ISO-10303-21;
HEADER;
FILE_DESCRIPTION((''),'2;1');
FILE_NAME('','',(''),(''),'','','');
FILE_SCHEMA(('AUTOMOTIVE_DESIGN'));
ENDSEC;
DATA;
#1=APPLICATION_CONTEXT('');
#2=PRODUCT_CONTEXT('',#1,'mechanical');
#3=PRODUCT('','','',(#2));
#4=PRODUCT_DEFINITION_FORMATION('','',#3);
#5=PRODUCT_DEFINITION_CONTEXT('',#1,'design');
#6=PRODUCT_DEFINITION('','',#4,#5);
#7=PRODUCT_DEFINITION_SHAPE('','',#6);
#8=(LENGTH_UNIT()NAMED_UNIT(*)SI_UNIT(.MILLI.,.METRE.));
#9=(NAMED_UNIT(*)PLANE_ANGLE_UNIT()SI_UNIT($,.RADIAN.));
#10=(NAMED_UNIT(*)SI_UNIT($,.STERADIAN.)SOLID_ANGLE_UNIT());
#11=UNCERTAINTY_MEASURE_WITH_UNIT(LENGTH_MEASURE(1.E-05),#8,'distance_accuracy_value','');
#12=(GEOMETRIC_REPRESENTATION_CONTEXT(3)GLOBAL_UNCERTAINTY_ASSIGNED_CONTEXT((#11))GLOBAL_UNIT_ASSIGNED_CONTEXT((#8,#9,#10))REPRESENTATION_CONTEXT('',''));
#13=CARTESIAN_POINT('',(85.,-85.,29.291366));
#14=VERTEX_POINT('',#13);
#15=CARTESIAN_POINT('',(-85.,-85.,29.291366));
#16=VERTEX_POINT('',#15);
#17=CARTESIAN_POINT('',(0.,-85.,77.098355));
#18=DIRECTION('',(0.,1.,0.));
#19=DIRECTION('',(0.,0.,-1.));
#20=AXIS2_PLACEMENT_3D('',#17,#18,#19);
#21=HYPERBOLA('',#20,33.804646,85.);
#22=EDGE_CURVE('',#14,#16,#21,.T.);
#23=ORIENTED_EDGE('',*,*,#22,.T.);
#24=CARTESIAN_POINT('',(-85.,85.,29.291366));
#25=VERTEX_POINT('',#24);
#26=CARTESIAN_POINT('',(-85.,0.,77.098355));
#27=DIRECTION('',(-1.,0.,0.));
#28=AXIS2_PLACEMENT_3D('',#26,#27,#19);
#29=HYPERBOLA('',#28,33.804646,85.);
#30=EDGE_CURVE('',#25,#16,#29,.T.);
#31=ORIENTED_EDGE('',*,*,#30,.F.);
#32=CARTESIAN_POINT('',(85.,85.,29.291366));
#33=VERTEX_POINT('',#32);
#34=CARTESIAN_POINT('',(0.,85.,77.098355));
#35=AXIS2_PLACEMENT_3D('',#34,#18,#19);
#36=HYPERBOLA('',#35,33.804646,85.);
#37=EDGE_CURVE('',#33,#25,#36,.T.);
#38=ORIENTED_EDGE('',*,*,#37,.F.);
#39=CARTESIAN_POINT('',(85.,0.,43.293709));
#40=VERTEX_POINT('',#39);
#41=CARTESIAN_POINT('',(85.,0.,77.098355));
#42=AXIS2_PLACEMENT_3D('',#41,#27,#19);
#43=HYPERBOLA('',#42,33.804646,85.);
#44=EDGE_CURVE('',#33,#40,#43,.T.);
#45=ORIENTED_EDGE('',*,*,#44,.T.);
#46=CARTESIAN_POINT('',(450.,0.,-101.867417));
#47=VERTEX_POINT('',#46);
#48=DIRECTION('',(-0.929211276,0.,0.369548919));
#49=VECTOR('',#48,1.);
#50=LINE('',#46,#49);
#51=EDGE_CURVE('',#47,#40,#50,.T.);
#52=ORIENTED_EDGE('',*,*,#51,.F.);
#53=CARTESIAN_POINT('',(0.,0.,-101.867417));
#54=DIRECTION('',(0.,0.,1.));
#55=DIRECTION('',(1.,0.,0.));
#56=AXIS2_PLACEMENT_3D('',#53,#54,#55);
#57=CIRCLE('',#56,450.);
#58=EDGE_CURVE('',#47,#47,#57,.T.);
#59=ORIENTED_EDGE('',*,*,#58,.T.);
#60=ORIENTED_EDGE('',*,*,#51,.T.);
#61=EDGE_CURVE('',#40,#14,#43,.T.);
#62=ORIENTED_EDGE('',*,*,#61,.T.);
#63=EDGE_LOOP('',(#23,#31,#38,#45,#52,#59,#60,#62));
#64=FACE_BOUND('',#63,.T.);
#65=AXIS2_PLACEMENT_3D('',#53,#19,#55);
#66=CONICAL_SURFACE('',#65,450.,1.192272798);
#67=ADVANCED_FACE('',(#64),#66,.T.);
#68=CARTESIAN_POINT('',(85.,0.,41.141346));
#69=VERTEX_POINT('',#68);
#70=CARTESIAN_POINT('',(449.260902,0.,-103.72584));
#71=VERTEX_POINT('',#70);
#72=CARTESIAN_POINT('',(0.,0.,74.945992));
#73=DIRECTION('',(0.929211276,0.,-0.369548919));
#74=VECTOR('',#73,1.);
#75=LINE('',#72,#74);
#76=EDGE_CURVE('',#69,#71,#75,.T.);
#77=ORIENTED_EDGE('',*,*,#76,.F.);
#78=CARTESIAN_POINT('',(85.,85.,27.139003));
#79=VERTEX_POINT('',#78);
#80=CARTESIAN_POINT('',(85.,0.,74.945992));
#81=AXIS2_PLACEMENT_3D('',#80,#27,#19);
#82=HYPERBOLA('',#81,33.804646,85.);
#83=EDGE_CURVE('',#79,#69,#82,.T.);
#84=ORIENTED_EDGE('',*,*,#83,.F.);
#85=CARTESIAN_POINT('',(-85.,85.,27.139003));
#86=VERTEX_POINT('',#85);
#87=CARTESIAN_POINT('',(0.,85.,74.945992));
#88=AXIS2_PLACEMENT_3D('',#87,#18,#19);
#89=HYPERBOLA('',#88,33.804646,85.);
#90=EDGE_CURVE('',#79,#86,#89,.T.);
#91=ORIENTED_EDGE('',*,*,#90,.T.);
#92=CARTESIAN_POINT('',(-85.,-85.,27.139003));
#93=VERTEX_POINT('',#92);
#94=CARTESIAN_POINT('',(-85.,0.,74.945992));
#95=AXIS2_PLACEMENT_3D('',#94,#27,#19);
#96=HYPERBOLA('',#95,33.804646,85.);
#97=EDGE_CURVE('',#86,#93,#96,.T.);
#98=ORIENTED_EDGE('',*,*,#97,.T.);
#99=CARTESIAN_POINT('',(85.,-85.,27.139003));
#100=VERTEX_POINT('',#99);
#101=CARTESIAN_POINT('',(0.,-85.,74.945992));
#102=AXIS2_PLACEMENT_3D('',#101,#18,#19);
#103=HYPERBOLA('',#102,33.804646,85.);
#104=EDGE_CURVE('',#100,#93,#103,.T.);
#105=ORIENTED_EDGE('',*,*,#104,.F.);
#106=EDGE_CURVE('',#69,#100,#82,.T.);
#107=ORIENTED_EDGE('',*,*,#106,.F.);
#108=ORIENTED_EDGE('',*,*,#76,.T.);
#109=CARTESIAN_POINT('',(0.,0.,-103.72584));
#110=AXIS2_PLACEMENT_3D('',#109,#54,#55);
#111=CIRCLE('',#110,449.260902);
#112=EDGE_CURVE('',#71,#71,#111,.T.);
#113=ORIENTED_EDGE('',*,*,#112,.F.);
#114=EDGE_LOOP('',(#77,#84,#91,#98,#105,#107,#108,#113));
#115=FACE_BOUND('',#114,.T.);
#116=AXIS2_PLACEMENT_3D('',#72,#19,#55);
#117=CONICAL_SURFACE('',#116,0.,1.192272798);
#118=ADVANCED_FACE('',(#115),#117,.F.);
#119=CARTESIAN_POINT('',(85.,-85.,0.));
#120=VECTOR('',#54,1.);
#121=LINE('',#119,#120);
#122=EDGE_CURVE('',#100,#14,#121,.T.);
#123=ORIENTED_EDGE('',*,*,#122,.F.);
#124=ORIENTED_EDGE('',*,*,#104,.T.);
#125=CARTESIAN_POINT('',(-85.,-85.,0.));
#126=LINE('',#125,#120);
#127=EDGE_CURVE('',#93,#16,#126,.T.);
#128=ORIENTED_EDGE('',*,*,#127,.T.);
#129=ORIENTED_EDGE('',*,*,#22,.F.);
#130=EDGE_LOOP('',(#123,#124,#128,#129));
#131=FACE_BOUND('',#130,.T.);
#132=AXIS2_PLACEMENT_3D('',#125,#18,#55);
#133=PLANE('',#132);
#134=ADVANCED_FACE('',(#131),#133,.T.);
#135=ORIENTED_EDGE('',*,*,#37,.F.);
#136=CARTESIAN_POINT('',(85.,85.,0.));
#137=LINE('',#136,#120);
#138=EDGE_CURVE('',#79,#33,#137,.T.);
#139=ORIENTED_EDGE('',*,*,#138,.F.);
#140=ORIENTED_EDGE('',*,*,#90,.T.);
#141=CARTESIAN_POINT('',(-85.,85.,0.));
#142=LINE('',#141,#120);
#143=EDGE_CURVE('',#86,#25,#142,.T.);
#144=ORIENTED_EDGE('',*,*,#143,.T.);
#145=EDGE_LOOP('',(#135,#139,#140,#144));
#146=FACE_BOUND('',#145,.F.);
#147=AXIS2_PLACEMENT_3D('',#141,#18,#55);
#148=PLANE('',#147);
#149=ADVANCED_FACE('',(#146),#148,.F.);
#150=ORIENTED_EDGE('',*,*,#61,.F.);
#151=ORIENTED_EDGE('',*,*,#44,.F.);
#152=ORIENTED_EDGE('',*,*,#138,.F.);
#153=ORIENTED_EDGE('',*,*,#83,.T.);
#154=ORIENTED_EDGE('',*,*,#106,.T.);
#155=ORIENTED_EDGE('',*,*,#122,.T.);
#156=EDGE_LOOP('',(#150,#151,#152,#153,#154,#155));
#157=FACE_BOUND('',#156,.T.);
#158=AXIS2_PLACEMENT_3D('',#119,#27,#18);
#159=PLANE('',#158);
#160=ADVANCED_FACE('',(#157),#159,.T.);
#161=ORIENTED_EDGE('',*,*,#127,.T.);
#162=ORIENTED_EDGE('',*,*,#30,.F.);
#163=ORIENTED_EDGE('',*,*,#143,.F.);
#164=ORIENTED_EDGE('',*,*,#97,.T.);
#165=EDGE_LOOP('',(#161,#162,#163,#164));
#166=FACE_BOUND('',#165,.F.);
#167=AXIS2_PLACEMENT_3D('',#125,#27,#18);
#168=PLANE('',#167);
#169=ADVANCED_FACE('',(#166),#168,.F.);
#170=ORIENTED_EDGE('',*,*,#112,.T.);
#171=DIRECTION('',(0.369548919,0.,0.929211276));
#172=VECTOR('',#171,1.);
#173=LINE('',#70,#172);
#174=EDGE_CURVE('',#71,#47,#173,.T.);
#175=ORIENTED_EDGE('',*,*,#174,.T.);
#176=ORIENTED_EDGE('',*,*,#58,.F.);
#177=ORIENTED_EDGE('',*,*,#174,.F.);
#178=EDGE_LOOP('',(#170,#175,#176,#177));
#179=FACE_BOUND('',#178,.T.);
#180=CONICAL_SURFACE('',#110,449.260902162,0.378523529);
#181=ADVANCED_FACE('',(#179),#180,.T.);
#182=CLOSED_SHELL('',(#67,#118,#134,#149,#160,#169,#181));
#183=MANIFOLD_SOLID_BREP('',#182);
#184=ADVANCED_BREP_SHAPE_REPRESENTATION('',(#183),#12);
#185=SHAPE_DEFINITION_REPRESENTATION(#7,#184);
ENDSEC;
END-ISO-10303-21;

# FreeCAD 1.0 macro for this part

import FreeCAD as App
import Part
import Sketcher

V = App.Vector
Q = App.Units.Quantity


def add_polygon(sketch, points):
    """Adds a closed chain of lines whose ends are joined by coincident constraints."""
    first, n = sketch.GeometryCount, len(points)
    for a, b in zip(points, points[1:] + points[:1]):
        sketch.addGeometry(Part.LineSegment(App.Vector(*a, 0), App.Vector(*b, 0)), False)
    for i in range(n):
        sketch.addConstraint(Sketcher.Constraint("Coincident", first + i, 2, first + (i + 1) % n, 1))

doc = App.newDocument("Part")
body = doc.addObject("PartDesign::Body", "Body")

sketch1 = doc.addObject("Sketcher::SketchObject", "Sketch")
body.addObject(sketch1)
sketch1.AttachmentSupport = (doc.XZ_Plane, [""])
sketch1.MapMode = "FlatFace"
add_polygon(sketch1, [(450, -101.9), (0, 77.1), (0, 74.9), (449.3, -103.7)])
sketch1.addConstraint(Sketcher.Constraint("Vertical", 1))
sketch1.addConstraint(Sketcher.Constraint("PointOnObject", 0, 2, -2))
sketch1.addConstraint(Sketcher.Constraint("Parallel", 0, 2))
sketch1.addConstraint(Sketcher.Constraint("Perpendicular", 2, 3))
sketch1.addConstraint(Sketcher.Constraint("Distance", 3, Q("2 mm")))
sketch1.addConstraint(Sketcher.Constraint("DistanceX", -1, 1, 3, 2, Q("450 mm")))
sketch1.addConstraint(Sketcher.Constraint("Distance", 2, Q("483.486279 mm")))
sketch1.addConstraint(Sketcher.Constraint("DistanceY", -1, 1, 1, 2, Q("74.945992 mm")))
revolution = doc.addObject("PartDesign::Revolution", "Revolution")
body.addObject(revolution)
revolution.Profile = sketch1
revolution.ReferenceAxis = (sketch1, ["V_Axis"])
revolution.Angle = 360

sketch2 = doc.addObject("Sketcher::SketchObject", "Sketch001")
body.addObject(sketch2)
sketch2.AttachmentSupport = (doc.XY_Plane, [""])
sketch2.MapMode = "FlatFace"
add_polygon(sketch2, [(-85, 85), (-85, -85), (85, -85), (85, 85)])
sketch2.addConstraint(Sketcher.Constraint("Vertical", 0))
sketch2.addConstraint(Sketcher.Constraint("Horizontal", 1))
sketch2.addConstraint(Sketcher.Constraint("Vertical", 2))
sketch2.addConstraint(Sketcher.Constraint("Horizontal", 3))
sketch2.addConstraint(Sketcher.Constraint("Symmetric", 0, 2, 2, 2, -1, 1))
sketch2.addConstraint(Sketcher.Constraint("Equal", 3, 0))
sketch2.addConstraint(Sketcher.Constraint("DistanceX", 1, 1, 1, 2, Q("170 mm")))
pocket1 = doc.addObject("PartDesign::Pocket", "Pocket")
body.addObject(pocket1)
pocket1.Profile = sketch2
pocket1.Length = 78.098355
pocket1.Reversed = True

doc.recompute()
